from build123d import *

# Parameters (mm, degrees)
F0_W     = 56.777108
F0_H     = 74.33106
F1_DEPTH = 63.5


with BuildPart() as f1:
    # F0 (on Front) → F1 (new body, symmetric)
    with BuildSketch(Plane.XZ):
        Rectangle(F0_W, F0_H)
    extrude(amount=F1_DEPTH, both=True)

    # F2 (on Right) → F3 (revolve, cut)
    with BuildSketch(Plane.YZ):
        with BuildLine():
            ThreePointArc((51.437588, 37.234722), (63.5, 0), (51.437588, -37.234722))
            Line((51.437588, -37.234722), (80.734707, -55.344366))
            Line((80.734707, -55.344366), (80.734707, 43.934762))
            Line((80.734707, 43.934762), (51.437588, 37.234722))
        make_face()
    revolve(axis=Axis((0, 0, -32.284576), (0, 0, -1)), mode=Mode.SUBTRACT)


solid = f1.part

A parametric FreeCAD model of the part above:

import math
import FreeCAD as App
import Part
import Sketcher

V = App.Vector
Q = App.Units.Quantity

doc = App.newDocument("Part")
body = doc.addObject("PartDesign::Body", "Body")

# Sketch on XZ plane
sketch1 = body.newObject("Sketcher::SketchObject", "Sketch")
sketch1.AttachmentSupport = (doc.getObject("XZ_Plane"), [""])
sketch1.MapMode = "FlatFace"
sketch1.addGeometry(Part.LineSegment(V(-28.388554, 37.16553, 0), V(-28.388554, -37.16553, 0)), False)
sketch1.addGeometry(Part.LineSegment(V(-28.388554, -37.16553, 0), V(28.388554, -37.16553, 0)), False)
sketch1.addGeometry(Part.LineSegment(V(28.388554, -37.16553, 0), V(28.388554, 37.16553, 0)), False)
sketch1.addGeometry(Part.LineSegment(V(28.388554, 37.16553, 0), V(-28.388554, 37.16553, 0)), False)
sketch1.addConstraint(Sketcher.Constraint("Coincident", 0, 2, 1, 1))
sketch1.addConstraint(Sketcher.Constraint("Coincident", 1, 2, 2, 1))
sketch1.addConstraint(Sketcher.Constraint("Coincident", 2, 2, 3, 1))
sketch1.addConstraint(Sketcher.Constraint("Coincident", 3, 2, 0, 1))
sketch1.addConstraint(Sketcher.Constraint("Vertical", 0))
sketch1.addConstraint(Sketcher.Constraint("Horizontal", 1))
sketch1.addConstraint(Sketcher.Constraint("Vertical", 2))
sketch1.addConstraint(Sketcher.Constraint("Horizontal", 3))
sketch1.addConstraint(Sketcher.Constraint("Symmetric", 0, 2, 2, 2, -1, 1))
sketch1.addConstraint(Sketcher.Constraint("DistanceY", 0, 2, 0, 1, Q("74.33106 mm")))
sketch1.addConstraint(Sketcher.Constraint("DistanceX", 1, 1, 1, 2, Q("56.777108 mm")))
pad1 = body.newObject("PartDesign::Pad", "Pad")
pad1.Profile = sketch1
pad1.Length = Q("5 in")
pad1.Midplane = True

# Sketch on YZ plane
sketch2 = body.newObject("Sketcher::SketchObject", "Sketch001")
sketch2.AttachmentSupport = (doc.getObject("YZ_Plane"), [""])
sketch2.MapMode = "FlatFace"
sketch2.addGeometry(Part.ArcOfCircle(Part.Circle(V(0.000001, 0, 0), V(0, 0, 1), 63.499999), math.radians(-35.900087), math.radians(35.900087)), False)
sketch2.addGeometry(Part.LineSegment(V(51.437588, -37.234722, 0), V(80.734707, -55.344366, 0)), False)
sketch2.addGeometry(Part.LineSegment(V(80.734707, -55.344366, 0), V(80.734707, 43.934762, 0)), False)
sketch2.addGeometry(Part.LineSegment(V(80.734707, 43.934762, 0), V(51.437588, 37.234722, 0)), False)
sketch2.addConstraint(Sketcher.Constraint("Coincident", 0, 1, 1, 1))
sketch2.addConstraint(Sketcher.Constraint("Coincident", 1, 2, 2, 1))
sketch2.addConstraint(Sketcher.Constraint("Coincident", 2, 2, 3, 1))
sketch2.addConstraint(Sketcher.Constraint("Coincident", 3, 2, 0, 2))
sketch2.addConstraint(Sketcher.Constraint("Vertical", 2))
sketch2.addConstraint(Sketcher.Constraint("Coincident", 0, 3, -1, 1))
sketch2.addConstraint(Sketcher.Constraint("Vertical", 0, 1, 3, 2))
sketch2.addConstraint(Sketcher.Constraint("Radius", 0, Q("2.5 in")))
sketch2.addConstraint(Sketcher.Constraint("DistanceY", 2, 1, 2, 2, Q("99.279128 mm")))
sketch2.addConstraint(Sketcher.Constraint("Distance", 1, Q("34.442421 mm")))
sketch2.addConstraint(Sketcher.Constraint("Distance", 3, Q("30.053481 mm")))
sketch2.addConstraint(Sketcher.Constraint("DistanceY", 0, 1, -1, 1, Q("37.234722 mm")))
groove = body.newObject("PartDesign::Groove", "Groove")
groove.Profile = sketch2
groove.ReferenceAxis = (sketch2, ["V_Axis"])
groove.Angle = 360

doc.recompute()
